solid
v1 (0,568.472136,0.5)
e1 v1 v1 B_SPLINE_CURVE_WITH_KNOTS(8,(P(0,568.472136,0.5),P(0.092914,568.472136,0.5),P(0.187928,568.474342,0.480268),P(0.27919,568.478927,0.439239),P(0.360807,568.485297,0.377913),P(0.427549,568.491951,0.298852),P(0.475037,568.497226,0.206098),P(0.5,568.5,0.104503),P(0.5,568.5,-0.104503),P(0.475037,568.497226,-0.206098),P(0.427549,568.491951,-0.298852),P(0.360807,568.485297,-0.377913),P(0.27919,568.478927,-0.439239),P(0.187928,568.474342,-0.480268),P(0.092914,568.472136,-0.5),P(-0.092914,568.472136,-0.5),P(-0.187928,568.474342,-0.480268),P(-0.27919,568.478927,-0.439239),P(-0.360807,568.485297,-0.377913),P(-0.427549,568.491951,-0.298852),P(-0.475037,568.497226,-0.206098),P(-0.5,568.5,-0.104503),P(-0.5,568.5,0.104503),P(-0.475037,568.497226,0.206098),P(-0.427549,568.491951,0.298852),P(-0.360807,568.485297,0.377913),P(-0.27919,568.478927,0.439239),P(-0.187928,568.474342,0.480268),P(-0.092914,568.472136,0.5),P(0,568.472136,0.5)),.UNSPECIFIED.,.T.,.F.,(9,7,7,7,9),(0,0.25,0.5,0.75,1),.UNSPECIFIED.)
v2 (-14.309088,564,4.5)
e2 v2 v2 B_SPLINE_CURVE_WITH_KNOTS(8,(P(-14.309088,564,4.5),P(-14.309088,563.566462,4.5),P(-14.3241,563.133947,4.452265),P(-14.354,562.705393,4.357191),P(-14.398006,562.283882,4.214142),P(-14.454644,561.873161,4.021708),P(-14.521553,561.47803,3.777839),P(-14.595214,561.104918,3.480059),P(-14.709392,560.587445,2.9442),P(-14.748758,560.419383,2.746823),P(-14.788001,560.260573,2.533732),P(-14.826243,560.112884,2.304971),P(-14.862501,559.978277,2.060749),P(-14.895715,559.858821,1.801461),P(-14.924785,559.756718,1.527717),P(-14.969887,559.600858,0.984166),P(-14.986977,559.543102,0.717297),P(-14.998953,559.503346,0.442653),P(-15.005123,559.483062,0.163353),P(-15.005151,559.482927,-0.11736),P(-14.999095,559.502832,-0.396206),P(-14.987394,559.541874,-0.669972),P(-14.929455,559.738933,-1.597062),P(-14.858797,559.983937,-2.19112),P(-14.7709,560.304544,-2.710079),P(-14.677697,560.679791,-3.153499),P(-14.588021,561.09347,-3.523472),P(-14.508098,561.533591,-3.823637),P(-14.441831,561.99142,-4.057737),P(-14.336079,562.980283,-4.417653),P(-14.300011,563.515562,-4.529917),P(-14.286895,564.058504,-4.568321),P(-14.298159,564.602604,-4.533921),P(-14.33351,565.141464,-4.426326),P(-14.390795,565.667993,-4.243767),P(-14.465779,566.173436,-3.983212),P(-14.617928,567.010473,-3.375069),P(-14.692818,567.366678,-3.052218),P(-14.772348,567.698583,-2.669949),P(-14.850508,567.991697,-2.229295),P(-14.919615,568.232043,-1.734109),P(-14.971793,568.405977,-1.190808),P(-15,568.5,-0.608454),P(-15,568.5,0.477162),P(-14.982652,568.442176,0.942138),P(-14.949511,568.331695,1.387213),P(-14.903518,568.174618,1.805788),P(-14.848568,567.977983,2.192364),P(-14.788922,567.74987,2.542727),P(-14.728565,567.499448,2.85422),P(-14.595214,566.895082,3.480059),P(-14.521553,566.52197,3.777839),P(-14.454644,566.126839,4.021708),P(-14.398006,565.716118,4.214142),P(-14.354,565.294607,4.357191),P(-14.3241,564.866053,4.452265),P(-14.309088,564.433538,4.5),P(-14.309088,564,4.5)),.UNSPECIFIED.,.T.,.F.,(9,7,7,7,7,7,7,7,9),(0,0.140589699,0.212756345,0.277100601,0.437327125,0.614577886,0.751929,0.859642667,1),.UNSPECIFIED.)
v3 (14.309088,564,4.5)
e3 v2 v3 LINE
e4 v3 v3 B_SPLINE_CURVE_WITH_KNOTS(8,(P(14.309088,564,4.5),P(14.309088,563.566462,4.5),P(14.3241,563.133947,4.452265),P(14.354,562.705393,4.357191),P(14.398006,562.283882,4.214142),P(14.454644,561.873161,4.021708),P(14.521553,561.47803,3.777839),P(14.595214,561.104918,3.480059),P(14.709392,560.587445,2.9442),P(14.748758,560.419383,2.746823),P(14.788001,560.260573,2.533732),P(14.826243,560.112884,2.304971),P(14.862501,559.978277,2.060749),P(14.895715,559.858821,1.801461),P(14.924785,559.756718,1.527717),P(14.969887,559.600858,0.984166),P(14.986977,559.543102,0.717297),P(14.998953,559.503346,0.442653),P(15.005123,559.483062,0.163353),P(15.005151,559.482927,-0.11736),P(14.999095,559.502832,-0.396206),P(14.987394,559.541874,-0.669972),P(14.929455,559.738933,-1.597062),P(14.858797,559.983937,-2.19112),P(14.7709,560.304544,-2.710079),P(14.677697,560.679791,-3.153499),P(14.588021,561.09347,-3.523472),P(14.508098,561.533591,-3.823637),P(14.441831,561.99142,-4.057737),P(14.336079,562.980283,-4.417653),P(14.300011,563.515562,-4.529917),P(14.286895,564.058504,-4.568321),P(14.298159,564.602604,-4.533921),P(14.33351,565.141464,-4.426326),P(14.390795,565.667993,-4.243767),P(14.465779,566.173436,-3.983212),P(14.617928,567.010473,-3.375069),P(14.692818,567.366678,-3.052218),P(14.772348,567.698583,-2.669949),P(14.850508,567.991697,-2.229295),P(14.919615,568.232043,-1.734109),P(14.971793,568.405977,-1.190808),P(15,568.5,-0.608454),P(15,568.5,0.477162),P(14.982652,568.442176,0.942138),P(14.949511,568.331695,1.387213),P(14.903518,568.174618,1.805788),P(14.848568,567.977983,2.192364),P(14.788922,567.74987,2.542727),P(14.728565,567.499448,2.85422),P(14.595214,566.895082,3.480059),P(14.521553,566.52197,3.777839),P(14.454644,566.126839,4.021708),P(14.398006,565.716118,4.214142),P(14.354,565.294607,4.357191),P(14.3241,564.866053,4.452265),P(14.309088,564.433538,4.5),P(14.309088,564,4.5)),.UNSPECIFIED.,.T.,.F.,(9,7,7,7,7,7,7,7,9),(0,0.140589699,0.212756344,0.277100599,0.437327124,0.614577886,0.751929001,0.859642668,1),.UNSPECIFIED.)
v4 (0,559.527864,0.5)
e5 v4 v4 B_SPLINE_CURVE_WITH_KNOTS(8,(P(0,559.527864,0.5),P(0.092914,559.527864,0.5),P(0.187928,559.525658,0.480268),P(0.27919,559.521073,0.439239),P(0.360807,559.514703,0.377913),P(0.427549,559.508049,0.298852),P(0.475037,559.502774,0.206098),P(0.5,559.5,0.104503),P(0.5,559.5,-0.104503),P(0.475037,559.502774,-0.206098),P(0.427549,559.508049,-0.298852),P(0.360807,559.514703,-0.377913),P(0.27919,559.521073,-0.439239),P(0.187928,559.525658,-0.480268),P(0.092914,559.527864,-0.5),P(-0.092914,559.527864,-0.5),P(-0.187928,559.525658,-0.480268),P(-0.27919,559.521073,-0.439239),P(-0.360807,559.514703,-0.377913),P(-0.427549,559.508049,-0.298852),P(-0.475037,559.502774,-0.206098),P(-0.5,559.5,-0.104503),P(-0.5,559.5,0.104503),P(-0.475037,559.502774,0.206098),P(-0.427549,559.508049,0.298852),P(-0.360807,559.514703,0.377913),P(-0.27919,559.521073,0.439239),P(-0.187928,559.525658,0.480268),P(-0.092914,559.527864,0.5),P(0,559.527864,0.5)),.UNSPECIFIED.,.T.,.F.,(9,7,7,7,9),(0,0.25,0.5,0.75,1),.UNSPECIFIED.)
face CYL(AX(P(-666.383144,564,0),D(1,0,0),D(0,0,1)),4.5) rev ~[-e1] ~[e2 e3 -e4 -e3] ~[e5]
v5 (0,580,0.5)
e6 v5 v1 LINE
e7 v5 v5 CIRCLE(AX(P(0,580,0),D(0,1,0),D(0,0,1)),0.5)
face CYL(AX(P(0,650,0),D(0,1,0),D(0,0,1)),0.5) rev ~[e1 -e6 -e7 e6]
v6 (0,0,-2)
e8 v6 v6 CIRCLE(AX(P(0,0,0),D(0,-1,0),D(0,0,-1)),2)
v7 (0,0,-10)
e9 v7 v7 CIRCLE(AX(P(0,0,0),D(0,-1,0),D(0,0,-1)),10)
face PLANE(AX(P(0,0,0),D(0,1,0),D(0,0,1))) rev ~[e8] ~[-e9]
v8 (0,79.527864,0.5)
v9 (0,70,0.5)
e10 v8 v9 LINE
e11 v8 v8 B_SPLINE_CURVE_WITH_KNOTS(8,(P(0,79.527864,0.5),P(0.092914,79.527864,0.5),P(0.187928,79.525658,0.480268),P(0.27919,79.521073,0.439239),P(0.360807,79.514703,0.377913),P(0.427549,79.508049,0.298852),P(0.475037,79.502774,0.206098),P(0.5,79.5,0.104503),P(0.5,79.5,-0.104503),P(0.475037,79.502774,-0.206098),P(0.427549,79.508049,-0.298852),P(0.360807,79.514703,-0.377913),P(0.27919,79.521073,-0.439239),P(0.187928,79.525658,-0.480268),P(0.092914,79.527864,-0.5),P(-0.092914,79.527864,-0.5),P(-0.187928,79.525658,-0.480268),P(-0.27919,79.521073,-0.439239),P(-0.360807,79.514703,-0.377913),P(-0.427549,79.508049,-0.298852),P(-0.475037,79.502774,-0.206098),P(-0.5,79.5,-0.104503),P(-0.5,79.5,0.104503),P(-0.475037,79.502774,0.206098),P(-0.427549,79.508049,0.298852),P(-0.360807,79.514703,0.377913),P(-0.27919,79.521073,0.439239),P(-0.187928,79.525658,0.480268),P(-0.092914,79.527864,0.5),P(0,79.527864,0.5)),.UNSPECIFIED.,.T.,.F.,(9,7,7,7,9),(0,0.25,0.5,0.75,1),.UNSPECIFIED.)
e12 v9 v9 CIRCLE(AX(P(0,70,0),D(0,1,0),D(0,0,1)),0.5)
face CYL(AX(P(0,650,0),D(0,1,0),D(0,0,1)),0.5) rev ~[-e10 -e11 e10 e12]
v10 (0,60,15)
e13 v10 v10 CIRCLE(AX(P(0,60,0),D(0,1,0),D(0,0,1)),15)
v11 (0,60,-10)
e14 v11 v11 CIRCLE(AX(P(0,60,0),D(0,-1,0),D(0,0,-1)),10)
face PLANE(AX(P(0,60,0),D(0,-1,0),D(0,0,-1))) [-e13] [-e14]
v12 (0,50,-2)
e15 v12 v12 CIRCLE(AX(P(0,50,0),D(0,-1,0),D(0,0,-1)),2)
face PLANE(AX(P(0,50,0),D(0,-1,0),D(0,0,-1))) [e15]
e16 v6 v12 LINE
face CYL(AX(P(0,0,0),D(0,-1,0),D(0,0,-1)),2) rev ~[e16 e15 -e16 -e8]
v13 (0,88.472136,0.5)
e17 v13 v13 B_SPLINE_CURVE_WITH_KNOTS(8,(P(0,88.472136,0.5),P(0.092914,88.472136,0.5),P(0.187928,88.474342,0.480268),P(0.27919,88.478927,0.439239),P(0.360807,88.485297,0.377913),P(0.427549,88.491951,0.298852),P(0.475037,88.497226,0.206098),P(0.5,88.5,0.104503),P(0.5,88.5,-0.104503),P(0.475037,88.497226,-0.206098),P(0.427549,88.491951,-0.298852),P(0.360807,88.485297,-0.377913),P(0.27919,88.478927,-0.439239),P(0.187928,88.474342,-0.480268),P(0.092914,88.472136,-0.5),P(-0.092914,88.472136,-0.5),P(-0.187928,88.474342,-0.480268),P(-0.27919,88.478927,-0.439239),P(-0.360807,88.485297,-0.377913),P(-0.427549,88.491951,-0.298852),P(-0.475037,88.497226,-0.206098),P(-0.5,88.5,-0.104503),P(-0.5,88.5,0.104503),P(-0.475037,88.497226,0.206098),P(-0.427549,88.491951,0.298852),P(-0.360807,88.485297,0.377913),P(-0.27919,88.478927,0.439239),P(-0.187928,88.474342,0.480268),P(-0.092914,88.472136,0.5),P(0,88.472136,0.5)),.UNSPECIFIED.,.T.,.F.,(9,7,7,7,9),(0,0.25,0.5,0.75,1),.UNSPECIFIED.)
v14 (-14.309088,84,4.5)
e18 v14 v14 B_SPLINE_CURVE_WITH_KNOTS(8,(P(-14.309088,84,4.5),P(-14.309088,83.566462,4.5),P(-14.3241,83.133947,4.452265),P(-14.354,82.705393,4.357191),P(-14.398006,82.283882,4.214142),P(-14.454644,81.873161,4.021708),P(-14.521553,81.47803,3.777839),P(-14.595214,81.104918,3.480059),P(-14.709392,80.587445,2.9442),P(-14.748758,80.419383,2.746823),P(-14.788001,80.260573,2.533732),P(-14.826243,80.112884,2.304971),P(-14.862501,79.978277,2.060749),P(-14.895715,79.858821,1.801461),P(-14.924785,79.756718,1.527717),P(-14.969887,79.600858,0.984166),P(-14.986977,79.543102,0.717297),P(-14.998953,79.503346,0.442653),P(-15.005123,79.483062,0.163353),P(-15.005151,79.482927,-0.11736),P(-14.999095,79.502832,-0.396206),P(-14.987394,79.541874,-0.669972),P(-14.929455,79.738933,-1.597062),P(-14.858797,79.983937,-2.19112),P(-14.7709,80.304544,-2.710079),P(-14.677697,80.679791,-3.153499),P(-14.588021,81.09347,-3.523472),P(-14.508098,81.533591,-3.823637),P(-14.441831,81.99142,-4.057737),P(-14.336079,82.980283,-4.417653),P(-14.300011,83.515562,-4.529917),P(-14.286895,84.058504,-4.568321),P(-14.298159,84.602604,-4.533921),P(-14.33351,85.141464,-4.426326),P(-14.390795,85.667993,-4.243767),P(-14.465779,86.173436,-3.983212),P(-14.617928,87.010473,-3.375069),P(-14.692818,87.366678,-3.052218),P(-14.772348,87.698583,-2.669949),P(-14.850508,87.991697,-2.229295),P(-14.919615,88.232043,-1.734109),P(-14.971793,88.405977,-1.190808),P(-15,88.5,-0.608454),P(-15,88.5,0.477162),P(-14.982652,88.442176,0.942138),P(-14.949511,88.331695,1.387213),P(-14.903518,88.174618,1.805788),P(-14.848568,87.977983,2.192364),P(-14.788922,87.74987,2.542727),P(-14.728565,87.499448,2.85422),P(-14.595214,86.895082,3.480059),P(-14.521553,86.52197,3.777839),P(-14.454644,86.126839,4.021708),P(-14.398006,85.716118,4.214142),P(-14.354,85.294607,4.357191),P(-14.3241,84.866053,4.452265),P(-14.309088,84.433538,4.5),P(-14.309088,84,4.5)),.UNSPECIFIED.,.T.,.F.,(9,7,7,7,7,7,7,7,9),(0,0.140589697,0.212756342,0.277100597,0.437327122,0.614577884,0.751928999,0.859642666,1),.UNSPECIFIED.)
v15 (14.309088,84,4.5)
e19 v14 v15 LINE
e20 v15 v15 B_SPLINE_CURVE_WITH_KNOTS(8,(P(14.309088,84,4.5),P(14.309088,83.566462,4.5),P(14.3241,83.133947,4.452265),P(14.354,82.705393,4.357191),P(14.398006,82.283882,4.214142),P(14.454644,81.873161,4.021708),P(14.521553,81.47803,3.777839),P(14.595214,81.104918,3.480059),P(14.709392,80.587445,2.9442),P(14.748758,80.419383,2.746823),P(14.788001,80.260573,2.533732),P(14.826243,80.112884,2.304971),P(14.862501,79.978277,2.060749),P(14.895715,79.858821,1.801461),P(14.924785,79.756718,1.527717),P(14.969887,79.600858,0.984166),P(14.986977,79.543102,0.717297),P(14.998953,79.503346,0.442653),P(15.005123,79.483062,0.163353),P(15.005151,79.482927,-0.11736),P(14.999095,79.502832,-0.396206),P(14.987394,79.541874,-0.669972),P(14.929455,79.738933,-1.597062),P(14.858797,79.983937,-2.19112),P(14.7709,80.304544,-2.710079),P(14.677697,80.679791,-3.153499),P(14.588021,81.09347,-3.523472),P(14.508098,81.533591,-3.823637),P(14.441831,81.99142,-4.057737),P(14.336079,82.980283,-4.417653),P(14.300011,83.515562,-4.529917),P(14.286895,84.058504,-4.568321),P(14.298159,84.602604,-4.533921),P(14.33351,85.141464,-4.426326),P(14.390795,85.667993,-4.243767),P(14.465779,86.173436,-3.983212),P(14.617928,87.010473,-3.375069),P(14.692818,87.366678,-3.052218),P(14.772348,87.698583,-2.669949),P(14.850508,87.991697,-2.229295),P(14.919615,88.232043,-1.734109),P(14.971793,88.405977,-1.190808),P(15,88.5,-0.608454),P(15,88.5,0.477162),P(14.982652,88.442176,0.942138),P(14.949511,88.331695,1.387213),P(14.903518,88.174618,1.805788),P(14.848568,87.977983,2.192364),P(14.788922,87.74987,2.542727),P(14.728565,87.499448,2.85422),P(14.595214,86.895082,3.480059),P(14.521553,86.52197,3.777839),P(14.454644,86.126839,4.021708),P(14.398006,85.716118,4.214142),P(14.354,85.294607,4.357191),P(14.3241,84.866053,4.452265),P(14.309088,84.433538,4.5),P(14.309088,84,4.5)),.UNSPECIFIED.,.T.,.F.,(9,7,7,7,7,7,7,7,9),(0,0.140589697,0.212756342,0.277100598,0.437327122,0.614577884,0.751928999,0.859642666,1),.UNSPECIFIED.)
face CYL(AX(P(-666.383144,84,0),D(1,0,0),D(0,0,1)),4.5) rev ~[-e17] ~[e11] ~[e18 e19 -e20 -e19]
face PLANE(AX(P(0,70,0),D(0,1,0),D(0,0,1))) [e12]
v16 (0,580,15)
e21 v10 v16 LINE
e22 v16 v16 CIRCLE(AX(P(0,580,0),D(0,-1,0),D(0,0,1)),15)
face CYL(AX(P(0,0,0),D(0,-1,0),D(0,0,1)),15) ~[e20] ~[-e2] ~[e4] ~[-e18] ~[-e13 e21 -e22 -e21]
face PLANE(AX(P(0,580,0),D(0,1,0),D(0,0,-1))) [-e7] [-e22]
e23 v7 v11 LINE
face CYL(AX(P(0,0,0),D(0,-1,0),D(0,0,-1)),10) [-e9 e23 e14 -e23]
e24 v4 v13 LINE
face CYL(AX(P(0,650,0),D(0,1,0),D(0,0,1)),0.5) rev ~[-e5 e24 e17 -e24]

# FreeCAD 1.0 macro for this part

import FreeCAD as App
import Part
import Sketcher
from FreeCAD import Vector

doc = App.newDocument("Part")
body = doc.addObject("PartDesign::Body", "Body")

sketch1 = body.newObject("Sketcher::SketchObject", "Sketch")
sketch1.AttachmentSupport = (doc.getObject("XZ_Plane"), [""])
sketch1.MapMode = "FlatFace"
sketch1.addGeometry(Part.Circle(Vector(0, 0, 0), Vector(0, 0, 1), 15), False)
sketch1.addConstraint([
    Sketcher.Constraint("Coincident", 0, 3, -1, 1),
    Sketcher.Constraint("Diameter", 0, 30.0),
])
pad1 = body.newObject("PartDesign::Pad", "Pad")
pad1.Profile = sketch1
pad1.Length = 650
pad1.Reversed = True

sketch2 = body.newObject("Sketcher::SketchObject", "Sketch001")
sketch2.AttachmentSupport = (doc.getObject("XZ_Plane"), [""])
sketch2.MapMode = "FlatFace"
sketch2.addGeometry([
    Part.Circle(Vector(0, 0, 0), Vector(0, 0, 1), 15),
    Part.Circle(Vector(0, 0, 0), Vector(0, 0, 1), 10),
], False)
sketch2.addConstraint([
    Sketcher.Constraint("Coincident", 0, 3, -1, 1),
    Sketcher.Constraint("Coincident", 1, 3, -1, 1),
    Sketcher.Constraint("Diameter", 0, 30.0),
    Sketcher.Constraint("Diameter", 1, 20.0),
])
pocket1 = body.newObject("PartDesign::Pocket", "Pocket")
pocket1.Profile = sketch2
pocket1.Length = 60

sketch3 = body.newObject("Sketcher::SketchObject", "Sketch002")
sketch3.AttachmentSupport = (doc.getObject("XZ_Plane"), [""])
sketch3.MapMode = "FlatFace"
sketch3.addGeometry(Part.Circle(Vector(0, 0, 0), Vector(0, 0, 1), 2), False)
sketch3.addConstraint([
    Sketcher.Constraint("Coincident", 0, 3, -1, 1),
    Sketcher.Constraint("Diameter", 0, 4.0),
])
pocket2 = body.newObject("PartDesign::Pocket", "Pocket001")
pocket2.Profile = sketch3
pocket2.Length = 50

sketch4 = body.newObject("Sketcher::SketchObject", "Sketch003")
sketch4.AttachmentSupport = (doc.getObject("YZ_Plane"), [""])
sketch4.MapMode = "FlatFace"
sketch4.AttachmentOffset = App.Placement(Vector(0, 0, -15), App.Rotation())
sketch4.addGeometry([
    Part.Circle(Vector(84, 0, 0), Vector(0, 0, 1), 4.5),
    Part.Circle(Vector(564, 0, 0), Vector(0, 0, 1), 4.5),
], False)
sketch4.addConstraint([
    Sketcher.Constraint("Equal", 0, 1),
    Sketcher.Constraint("PointOnObject", 0, 3, -1),
    Sketcher.Constraint("PointOnObject", 1, 3, -1),
    Sketcher.Constraint("Diameter", 0, 9.0),
    Sketcher.Constraint("DistanceX", -1, 1, 0, 3, 84.0),
    Sketcher.Constraint("DistanceX", -1, 1, 1, 3, 564.0),
])
doc.recompute()
hole = body.newObject("PartDesign::Hole", "Hole")
hole.Profile = sketch4
hole.ThreadType = "None"
hole.Diameter = 9
hole.DepthType = "ThroughAll"
hole.Reversed = True

sketch5 = body.newObject("Sketcher::SketchObject", "Sketch004")
sketch5.AttachmentSupport = (doc.getObject("XZ_Plane"), [""])
sketch5.MapMode = "FlatFace"
sketch5.AttachmentOffset = App.Placement(Vector(0, 0, -650), App.Rotation())
sketch5.addGeometry(Part.Circle(Vector(0, 0, 0), Vector(0, 0, 1), 0.5), False)
sketch5.addConstraint([
    Sketcher.Constraint("Coincident", 0, 3, -1, 1),
    Sketcher.Constraint("Diameter", 0, 1.0),
])
pocket3 = body.newObject("PartDesign::Pocket", "Pocket002")
pocket3.Profile = sketch5
pocket3.Length = 580
pocket3.Reversed = True

sketch6 = body.newObject("Sketcher::SketchObject", "Sketch005")
sketch6.AttachmentSupport = (doc.getObject("XZ_Plane"), [""])
sketch6.MapMode = "FlatFace"
sketch6.AttachmentOffset = App.Placement(Vector(0, 0, -580), App.Rotation())
sketch6.addGeometry(Part.Circle(Vector(0, 0, 0), Vector(0, 0, 1), 15), False)
sketch6.addConstraint([
    Sketcher.Constraint("Coincident", 0, 3, -1, 1),
    Sketcher.Constraint("Diameter", 0, 30.0),
])
pocket4 = body.newObject("PartDesign::Pocket", "Pocket003")
pocket4.Profile = sketch6
pocket4.Length = 70

doc.recompute()
